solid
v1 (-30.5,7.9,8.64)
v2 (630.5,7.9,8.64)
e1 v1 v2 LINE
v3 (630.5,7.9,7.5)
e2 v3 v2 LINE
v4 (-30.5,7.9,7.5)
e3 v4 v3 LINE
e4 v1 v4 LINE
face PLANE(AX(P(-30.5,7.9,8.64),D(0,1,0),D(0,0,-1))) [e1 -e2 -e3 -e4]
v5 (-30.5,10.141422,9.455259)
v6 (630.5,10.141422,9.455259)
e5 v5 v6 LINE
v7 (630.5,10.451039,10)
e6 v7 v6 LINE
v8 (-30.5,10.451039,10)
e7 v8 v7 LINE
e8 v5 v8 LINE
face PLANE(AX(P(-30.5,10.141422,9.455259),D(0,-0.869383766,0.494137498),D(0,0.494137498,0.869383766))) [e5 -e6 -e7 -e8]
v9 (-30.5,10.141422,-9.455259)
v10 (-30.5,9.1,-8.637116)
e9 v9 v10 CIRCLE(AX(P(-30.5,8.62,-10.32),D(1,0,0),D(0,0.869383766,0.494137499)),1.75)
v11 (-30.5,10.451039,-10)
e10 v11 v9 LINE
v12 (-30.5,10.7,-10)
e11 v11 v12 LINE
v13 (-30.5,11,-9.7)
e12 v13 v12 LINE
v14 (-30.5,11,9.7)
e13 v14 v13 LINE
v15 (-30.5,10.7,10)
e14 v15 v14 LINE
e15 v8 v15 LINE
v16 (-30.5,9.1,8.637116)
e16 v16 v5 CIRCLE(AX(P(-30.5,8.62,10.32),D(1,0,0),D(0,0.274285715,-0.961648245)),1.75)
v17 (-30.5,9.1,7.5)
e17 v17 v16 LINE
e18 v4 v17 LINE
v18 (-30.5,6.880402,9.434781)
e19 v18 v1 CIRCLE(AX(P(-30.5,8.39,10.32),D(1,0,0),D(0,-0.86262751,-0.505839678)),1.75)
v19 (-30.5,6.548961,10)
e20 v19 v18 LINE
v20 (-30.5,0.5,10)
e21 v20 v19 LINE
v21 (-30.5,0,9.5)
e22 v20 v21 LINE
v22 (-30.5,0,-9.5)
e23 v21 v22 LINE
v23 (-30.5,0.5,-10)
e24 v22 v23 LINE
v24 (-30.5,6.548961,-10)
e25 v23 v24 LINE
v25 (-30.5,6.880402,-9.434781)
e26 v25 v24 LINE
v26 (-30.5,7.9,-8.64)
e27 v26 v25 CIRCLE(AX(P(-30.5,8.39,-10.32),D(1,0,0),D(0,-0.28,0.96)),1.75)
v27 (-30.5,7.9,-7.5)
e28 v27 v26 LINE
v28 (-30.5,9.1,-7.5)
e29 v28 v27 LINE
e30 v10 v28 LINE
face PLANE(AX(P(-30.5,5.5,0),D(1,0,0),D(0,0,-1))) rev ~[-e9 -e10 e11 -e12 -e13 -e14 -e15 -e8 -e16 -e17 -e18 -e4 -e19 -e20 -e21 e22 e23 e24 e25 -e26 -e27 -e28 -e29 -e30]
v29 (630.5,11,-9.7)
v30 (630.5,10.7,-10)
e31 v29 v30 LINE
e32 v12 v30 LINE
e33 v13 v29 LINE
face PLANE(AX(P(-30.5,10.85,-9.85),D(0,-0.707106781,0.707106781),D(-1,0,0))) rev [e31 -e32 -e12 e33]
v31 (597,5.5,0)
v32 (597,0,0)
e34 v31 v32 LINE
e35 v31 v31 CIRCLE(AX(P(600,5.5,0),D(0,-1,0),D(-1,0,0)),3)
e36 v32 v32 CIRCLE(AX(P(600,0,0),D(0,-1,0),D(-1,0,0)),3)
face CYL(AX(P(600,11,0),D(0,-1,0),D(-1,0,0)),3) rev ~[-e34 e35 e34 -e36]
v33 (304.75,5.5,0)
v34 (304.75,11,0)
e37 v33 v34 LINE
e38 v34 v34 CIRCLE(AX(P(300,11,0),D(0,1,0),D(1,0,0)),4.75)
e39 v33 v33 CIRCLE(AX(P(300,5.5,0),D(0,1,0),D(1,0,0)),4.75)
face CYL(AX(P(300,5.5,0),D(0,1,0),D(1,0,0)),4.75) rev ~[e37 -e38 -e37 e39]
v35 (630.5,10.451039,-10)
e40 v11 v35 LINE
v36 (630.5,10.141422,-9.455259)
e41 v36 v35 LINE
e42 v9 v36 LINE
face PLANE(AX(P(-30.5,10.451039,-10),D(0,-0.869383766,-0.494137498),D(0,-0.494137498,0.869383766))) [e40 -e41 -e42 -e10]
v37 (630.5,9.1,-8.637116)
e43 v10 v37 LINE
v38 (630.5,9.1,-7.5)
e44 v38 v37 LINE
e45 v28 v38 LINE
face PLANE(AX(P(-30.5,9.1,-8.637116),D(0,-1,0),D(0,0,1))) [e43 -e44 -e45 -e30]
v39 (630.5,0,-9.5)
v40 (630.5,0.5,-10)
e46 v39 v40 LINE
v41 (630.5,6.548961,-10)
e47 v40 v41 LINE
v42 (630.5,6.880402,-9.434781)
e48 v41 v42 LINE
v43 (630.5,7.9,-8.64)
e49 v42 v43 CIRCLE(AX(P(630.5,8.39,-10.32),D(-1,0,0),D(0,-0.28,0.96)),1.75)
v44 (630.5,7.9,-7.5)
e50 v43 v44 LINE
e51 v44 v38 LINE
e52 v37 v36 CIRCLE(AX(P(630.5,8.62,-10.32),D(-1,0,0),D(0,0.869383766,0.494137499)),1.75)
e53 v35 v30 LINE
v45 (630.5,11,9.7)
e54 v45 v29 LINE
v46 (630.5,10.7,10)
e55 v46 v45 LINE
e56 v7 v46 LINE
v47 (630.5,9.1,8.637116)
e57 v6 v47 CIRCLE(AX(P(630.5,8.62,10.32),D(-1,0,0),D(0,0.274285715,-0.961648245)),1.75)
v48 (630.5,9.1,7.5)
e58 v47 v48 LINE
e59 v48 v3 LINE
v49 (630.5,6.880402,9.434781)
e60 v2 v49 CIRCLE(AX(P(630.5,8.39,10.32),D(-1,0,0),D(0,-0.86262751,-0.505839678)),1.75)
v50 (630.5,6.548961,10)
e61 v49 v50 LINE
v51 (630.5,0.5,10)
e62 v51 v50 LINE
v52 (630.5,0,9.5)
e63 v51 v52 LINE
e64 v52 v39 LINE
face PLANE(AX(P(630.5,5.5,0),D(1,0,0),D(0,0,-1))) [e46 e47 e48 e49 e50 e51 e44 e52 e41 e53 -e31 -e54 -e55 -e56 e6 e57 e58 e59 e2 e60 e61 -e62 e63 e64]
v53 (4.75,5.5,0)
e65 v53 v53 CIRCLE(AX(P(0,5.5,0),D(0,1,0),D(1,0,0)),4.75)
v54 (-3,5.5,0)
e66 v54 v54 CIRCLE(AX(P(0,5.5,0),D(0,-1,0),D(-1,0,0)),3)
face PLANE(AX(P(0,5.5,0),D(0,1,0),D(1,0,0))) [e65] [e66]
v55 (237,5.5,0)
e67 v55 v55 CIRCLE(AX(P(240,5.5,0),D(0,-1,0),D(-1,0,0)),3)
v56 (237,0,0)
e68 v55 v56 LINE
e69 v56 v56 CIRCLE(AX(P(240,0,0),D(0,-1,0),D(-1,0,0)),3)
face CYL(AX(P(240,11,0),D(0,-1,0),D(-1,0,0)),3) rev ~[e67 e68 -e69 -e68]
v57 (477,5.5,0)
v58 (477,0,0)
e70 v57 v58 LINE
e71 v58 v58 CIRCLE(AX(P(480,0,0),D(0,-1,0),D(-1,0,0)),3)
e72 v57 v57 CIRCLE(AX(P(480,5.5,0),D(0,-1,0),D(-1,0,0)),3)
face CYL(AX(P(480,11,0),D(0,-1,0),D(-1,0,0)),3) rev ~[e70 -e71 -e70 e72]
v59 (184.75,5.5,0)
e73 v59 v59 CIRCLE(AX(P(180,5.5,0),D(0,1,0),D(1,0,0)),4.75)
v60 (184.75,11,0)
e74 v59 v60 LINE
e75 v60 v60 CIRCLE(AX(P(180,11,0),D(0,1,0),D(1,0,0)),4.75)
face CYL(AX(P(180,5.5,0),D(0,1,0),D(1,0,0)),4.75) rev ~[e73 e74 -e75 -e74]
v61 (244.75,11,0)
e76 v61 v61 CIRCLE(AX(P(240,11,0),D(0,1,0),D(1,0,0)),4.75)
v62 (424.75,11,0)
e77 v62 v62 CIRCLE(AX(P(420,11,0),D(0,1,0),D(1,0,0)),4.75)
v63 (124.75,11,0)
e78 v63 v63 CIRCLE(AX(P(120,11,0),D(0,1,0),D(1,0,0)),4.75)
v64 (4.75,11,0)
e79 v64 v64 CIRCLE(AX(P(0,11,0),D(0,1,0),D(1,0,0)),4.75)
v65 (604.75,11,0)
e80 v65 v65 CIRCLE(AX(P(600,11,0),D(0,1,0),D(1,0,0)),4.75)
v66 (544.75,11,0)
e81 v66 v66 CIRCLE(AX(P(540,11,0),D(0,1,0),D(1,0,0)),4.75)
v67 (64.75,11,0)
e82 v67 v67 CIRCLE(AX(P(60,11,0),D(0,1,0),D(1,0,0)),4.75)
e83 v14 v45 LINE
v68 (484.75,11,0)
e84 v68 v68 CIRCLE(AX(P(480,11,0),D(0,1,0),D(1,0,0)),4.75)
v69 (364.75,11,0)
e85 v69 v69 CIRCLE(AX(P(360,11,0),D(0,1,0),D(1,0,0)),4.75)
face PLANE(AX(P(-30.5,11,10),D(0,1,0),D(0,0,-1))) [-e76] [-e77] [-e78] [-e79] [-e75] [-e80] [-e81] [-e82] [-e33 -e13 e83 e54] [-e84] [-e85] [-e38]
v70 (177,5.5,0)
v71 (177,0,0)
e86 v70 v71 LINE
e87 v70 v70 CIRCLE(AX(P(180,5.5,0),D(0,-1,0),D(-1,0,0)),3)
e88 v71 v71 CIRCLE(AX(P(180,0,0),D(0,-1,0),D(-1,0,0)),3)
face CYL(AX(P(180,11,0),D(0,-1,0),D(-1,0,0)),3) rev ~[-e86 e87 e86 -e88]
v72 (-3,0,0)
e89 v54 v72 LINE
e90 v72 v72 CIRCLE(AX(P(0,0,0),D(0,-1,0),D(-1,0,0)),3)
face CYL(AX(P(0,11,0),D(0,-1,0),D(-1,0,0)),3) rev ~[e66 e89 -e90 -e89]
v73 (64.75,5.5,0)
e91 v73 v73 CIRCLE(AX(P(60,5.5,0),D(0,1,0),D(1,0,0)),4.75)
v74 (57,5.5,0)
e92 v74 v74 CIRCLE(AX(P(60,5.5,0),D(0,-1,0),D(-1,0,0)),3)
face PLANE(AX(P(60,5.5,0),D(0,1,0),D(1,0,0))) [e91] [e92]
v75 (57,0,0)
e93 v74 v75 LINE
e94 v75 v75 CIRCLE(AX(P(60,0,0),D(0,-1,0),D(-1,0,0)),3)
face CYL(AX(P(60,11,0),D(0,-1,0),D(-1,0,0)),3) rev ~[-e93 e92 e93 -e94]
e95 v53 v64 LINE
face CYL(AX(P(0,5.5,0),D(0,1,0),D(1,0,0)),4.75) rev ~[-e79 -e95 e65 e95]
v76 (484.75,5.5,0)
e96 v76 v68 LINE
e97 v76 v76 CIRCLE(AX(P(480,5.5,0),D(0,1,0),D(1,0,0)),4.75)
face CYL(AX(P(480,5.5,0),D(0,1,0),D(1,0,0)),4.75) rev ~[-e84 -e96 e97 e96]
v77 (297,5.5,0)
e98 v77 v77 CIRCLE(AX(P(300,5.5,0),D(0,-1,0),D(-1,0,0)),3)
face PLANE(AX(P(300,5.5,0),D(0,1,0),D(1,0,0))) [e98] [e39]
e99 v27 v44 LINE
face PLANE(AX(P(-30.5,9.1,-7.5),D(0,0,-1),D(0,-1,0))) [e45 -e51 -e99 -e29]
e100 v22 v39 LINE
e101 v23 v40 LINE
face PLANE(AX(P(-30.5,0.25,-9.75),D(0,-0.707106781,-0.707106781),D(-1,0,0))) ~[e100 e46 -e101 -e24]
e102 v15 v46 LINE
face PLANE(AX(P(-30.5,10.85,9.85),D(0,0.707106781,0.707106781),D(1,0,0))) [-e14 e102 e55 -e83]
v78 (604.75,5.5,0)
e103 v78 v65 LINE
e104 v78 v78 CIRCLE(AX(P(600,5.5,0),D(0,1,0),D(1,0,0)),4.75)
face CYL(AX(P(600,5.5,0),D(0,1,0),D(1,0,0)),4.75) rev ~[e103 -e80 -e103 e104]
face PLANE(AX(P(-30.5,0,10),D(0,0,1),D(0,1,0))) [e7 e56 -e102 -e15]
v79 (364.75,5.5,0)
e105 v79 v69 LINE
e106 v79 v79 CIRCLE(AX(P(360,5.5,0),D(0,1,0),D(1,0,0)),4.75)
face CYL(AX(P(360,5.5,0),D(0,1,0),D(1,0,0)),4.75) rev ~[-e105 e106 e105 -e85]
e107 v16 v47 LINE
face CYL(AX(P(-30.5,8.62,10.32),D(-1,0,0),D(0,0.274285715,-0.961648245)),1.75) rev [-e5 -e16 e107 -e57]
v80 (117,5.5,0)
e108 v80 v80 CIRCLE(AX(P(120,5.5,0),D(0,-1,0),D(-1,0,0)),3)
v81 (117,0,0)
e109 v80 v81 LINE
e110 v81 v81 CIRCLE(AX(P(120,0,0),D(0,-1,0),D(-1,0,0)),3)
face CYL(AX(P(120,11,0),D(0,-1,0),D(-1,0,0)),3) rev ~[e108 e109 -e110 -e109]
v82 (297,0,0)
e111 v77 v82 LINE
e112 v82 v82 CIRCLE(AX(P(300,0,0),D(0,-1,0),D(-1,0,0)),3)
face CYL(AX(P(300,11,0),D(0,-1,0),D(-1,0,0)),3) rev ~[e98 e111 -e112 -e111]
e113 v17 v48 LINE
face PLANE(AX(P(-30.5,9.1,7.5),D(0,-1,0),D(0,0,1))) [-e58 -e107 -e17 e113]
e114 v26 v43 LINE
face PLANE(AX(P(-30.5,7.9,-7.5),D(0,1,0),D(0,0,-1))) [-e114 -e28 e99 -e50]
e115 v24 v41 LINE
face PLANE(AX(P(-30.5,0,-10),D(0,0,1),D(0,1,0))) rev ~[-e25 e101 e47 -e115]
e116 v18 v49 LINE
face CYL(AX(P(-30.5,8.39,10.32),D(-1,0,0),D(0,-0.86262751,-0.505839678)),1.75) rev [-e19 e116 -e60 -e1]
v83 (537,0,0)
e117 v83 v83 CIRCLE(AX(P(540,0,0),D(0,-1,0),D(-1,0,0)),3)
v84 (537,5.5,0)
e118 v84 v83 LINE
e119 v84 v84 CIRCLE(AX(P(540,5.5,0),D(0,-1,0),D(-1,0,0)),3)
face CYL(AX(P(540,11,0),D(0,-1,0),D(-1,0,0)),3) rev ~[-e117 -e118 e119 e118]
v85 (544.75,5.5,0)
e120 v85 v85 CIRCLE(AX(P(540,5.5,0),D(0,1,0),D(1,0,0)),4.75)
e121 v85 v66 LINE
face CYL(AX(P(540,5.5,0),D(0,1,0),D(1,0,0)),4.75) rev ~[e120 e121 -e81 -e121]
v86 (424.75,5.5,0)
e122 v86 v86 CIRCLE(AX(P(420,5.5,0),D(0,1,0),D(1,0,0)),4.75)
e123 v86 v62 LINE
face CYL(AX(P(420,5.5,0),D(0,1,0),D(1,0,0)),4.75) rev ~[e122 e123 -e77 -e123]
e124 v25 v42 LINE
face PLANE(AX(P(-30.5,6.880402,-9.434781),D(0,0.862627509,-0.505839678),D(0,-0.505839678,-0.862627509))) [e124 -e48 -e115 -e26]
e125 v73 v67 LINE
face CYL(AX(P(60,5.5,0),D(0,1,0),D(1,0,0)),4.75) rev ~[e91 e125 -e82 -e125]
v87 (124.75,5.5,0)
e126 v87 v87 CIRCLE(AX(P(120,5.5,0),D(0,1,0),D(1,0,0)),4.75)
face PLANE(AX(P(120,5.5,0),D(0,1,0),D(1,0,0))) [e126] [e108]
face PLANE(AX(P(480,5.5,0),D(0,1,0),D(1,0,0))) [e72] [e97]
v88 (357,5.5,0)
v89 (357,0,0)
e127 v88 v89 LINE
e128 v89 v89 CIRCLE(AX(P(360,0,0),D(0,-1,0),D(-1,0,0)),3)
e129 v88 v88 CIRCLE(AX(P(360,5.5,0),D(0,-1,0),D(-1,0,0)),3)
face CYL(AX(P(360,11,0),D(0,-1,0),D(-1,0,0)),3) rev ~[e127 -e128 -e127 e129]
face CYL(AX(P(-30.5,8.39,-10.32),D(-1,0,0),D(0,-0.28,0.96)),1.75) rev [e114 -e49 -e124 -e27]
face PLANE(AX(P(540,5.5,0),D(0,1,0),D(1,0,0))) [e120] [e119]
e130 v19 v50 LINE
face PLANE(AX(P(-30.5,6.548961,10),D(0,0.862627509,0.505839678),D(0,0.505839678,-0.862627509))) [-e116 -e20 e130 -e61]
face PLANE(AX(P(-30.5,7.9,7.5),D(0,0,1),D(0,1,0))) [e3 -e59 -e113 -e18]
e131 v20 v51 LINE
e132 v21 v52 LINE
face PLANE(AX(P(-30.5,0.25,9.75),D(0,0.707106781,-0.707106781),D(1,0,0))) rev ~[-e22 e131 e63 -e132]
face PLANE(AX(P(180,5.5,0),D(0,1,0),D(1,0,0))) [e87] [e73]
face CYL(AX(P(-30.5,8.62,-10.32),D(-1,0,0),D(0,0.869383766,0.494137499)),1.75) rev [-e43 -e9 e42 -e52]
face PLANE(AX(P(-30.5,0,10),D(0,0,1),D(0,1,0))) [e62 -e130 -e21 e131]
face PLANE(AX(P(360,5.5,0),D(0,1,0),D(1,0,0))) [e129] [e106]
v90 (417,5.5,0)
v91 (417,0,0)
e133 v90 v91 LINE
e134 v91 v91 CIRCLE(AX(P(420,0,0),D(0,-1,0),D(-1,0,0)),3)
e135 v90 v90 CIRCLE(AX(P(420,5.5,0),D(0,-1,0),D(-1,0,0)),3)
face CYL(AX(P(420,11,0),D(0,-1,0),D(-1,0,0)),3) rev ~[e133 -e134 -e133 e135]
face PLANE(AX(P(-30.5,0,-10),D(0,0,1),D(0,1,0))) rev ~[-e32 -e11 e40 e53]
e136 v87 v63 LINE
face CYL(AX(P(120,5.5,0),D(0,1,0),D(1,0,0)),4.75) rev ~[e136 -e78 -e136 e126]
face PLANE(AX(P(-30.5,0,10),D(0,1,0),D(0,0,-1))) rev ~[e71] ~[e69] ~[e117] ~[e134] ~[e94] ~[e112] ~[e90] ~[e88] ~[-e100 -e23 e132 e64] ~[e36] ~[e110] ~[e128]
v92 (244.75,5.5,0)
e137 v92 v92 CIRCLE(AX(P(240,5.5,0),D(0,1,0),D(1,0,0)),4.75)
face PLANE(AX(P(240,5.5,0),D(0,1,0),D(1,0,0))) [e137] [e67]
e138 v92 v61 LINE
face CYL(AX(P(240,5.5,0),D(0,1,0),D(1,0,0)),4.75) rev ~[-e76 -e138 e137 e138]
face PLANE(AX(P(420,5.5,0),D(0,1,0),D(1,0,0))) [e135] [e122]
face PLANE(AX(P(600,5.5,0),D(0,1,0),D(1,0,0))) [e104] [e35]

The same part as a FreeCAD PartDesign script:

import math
import FreeCAD as App
import Part
import Sketcher

V = App.Vector
Q = App.Units.Quantity


def edges_at(feature, points):
    """Names of the edges that pass closest to the given points."""
    edges = feature.Shape.Edges
    near = lambda p: min(range(len(edges)), key=lambda i: edges[i].distToShape(Part.Vertex(*p))[0])
    return sorted({f"Edge{near(p) + 1}" for p in points})

doc = App.newDocument("Part")
body = doc.addObject("PartDesign::Body", "Body")

# Sketch on YZ plane
sketch1 = body.newObject("Sketcher::SketchObject", "Sketch")
sketch1.AttachmentSupport = (doc.getObject("YZ_Plane"), [""])
sketch1.MapMode = "FlatFace"
sketch1.AttachmentOffset = App.Placement(V(0, 0, -30.5), App.Rotation())
sketch1.addGeometry([
    Part.LineSegment(V(11, 10, 0), V(0, 10, 0)),
    Part.LineSegment(V(0, 10, 0), V(0, -10, 0)),
    Part.LineSegment(V(0, -10, 0), V(11, -10, 0)),
    Part.LineSegment(V(11, -10, 0), V(11, 10, 0)),
], False)
sketch1.addConstraint([
    Sketcher.Constraint("Coincident", 0, 2, 1, 1),
    Sketcher.Constraint("Coincident", 1, 2, 2, 1),
    Sketcher.Constraint("Coincident", 2, 2, 3, 1),
    Sketcher.Constraint("Coincident", 3, 2, 0, 1),
    Sketcher.Constraint("Horizontal", 0),
    Sketcher.Constraint("Vertical", 1),
    Sketcher.Constraint("Horizontal", 2),
    Sketcher.Constraint("Vertical", 3),
    Sketcher.Constraint("Symmetric", 0, 2, 1, 2, -1, 1),
    Sketcher.Constraint("DistanceX", 0, 2, 0, 1, Q("11 mm")),
    Sketcher.Constraint("DistanceY", 1, 2, 1, 1, Q("20 mm")),
])
pad1 = body.newObject("PartDesign::Pad", "Pad")
pad1.Profile = sketch1
pad1.Length = 661

# Sketch on YZ plane
sketch2 = body.newObject("Sketcher::SketchObject", "Sketch001")
sketch2.AttachmentSupport = (doc.getObject("YZ_Plane"), [""])
sketch2.MapMode = "FlatFace"
sketch2.AttachmentOffset = App.Placement(V(0, 0, -30.5), App.Rotation())
sketch2.addGeometry([
    Part.LineSegment(V(10.5, -10, 0), V(10.1, -9.5, 0)),  # 0
    Part.ArcOfCircle(Part.Circle(V(8.6, -10.3, 0), V(0, 0, 1), 1.8), math.radians(30), math.radians(74)),  # 1
    Part.LineSegment(V(9.1, -8.6, 0), V(9.1, -7.5, 0)),  # 2
    Part.LineSegment(V(9.1, -7.5, 0), V(7.9, -7.5, 0)),  # 3
    Part.LineSegment(V(7.9, -7.5, 0), V(7.9, -8.6, 0)),  # 4
    Part.ArcOfCircle(Part.Circle(V(8.4, -10.3, 0), V(0, 0, 1), 1.8), math.radians(106), math.radians(150)),  # 5
    Part.LineSegment(V(6.9, -9.4, 0), V(6.5, -10, 0)),  # 6
    Part.LineSegment(V(6.5, -10, 0), V(10.5, -10, 0)),  # 7
    Part.LineSegment(V(10.5, 10, 0), V(6.5, 10, 0)),  # 8
    Part.LineSegment(V(6.5, 10, 0), V(6.9, 9.4, 0)),  # 9
    Part.ArcOfCircle(Part.Circle(V(8.4, 10.3, 0), V(0, 0, 1), 1.8), math.radians(-150), math.radians(-106)),  # 10
    Part.LineSegment(V(7.9, 8.6, 0), V(7.9, 7.5, 0)),  # 11
    Part.LineSegment(V(7.9, 7.5, 0), V(9.1, 7.5, 0)),  # 12
    Part.LineSegment(V(9.1, 7.5, 0), V(9.1, 8.6, 0)),  # 13
    Part.ArcOfCircle(Part.Circle(V(8.6, 10.3, 0), V(0, 0, 1), 1.8), math.radians(-74), math.radians(-30)),  # 14
    Part.LineSegment(V(10.1, 9.5, 0), V(10.5, 10, 0)),  # 15
], False)
sketch2.addConstraint([
    Sketcher.Constraint("Tangent", 0, 2, 1, 1),
    Sketcher.Constraint("Coincident", 1, 2, 2, 1),
    Sketcher.Constraint("Coincident", 2, 2, 3, 1),
    Sketcher.Constraint("Coincident", 3, 2, 4, 1),
    Sketcher.Constraint("Coincident", 4, 2, 5, 1),
    Sketcher.Constraint("Tangent", 5, 2, 6, 1),
    Sketcher.Constraint("Coincident", 6, 2, 7, 1),
    Sketcher.Constraint("Coincident", 7, 2, 0, 1),
    Sketcher.Constraint("Coincident", 8, 2, 9, 1),
    Sketcher.Constraint("Tangent", 9, 2, 10, 1),
    Sketcher.Constraint("Coincident", 10, 2, 11, 1),
    Sketcher.Constraint("Coincident", 11, 2, 12, 1),
    Sketcher.Constraint("Coincident", 12, 2, 13, 1),
    Sketcher.Constraint("Coincident", 13, 2, 14, 1),
    Sketcher.Constraint("Tangent", 14, 2, 15, 1),
    Sketcher.Constraint("Coincident", 15, 2, 8, 1),
    Sketcher.Constraint("Vertical", 2),
    Sketcher.Constraint("Horizontal", 3),
    Sketcher.Constraint("Vertical", 4),
    Sketcher.Constraint("Horizontal", 7),
    Sketcher.Constraint("Horizontal", 8),
    Sketcher.Constraint("Vertical", 11),
    Sketcher.Constraint("Horizontal", 12),
    Sketcher.Constraint("Vertical", 13),
    Sketcher.Constraint("Equal", 1, 5),
    Sketcher.Constraint("Equal", 5, 10),
    Sketcher.Constraint("Equal", 10, 14),
    Sketcher.Constraint("Symmetric", 5, 3, 10, 3, -1),
    Sketcher.Constraint("Symmetric", 1, 3, 14, 3, -1),
    Sketcher.Constraint("Symmetric", 6, 2, 8, 2, -1),
    Sketcher.Constraint("Symmetric", 3, 2, 11, 2, -1),
    Sketcher.Constraint("Horizontal", 1, 3, 5, 3),
    Sketcher.Constraint("Vertical", 2, 2, 12, 2),
    Sketcher.Constraint("Vertical", 0, 2, 14, 2),
    Sketcher.Constraint("Radius", 1, Q("1.75 mm")),
    Sketcher.Constraint("DistanceX", 3, 2, 3, 1, Q("1.2 mm")),
    Sketcher.Constraint("DistanceY", 6, 2, -1, 1, Q("10 mm")),
    Sketcher.Constraint("DistanceY", 4, 2, 4, 1, Q("1.14 mm")),
    Sketcher.Constraint("DistanceX", -1, 1, 1, 2, Q("9.1 mm")),
    Sketcher.Constraint("DistanceY", 2, 2, -1, 1, Q("7.5 mm")),
    Sketcher.Constraint("DistanceX", -1, 1, 1, 3, Q("8.62 mm")),
    Sketcher.Constraint("DistanceY", 1, 3, -1, 1, Q("10.32 mm")),
    Sketcher.Constraint("DistanceX", 7, 1, 7, 2, Q("3.902079 mm")),
    Sketcher.Constraint("DistanceX", -1, 1, 5, 2, Q("6.880402 mm")),
])
pocket1 = body.newObject("PartDesign::Pocket", "Pocket")
pocket1.Profile = sketch2
pocket1.Type = "ThroughAll"
pocket1.Reversed = True

# Sketch on XZ plane
sketch3 = body.newObject("Sketcher::SketchObject", "Sketch002")
sketch3.AttachmentSupport = (doc.getObject("XZ_Plane"), [""])
sketch3.MapMode = "FlatFace"
sketch3.AttachmentOffset = App.Placement(V(0, 0, -11), App.Rotation())
sketch3.addGeometry(Part.Circle(V(0, 0, 0), V(0, 0, 1), 3), False)
sketch3.addConstraint([
    Sketcher.Constraint("Coincident", 0, 3, -1, 1),
    Sketcher.Constraint("Diameter", 0, Q("6 mm")),
])
doc.recompute()
hole = body.newObject("PartDesign::Hole", "Hole")
hole.Profile = sketch3
hole.ThreadType = "None"
hole.Diameter = 6
hole.DepthType = "ThroughAll"
hole.HoleCutType = "Counterbore"
hole.HoleCutDiameter = 9.5
hole.HoleCutDepth = 5.5
hole.Reversed = True
doc.recompute()

linearpattern = body.newObject("PartDesign::LinearPattern", "LinearPattern")
linearpattern.Originals = [hole]
linearpattern.Direction = (doc.getObject("X_Axis"), [""])
linearpattern.Mode = "offset"
linearpattern.Offset = 60
linearpattern.Occurrences = 11
body.Tip = linearpattern
doc.recompute()

chamfer = body.newObject("PartDesign::Chamfer", "Chamfer")
chamfer.Base = (linearpattern, edges_at(linearpattern, [(300, 11, 10), (300, 11, -10)]))
chamfer.Size = 0.3
doc.recompute()

chamfer2 = body.newObject("PartDesign::Chamfer", "Chamfer001")
chamfer2.Base = (chamfer, edges_at(chamfer, [(300, 0, -10), (300, 0, 10)]))
chamfer2.Size = 0.5

doc.recompute()
